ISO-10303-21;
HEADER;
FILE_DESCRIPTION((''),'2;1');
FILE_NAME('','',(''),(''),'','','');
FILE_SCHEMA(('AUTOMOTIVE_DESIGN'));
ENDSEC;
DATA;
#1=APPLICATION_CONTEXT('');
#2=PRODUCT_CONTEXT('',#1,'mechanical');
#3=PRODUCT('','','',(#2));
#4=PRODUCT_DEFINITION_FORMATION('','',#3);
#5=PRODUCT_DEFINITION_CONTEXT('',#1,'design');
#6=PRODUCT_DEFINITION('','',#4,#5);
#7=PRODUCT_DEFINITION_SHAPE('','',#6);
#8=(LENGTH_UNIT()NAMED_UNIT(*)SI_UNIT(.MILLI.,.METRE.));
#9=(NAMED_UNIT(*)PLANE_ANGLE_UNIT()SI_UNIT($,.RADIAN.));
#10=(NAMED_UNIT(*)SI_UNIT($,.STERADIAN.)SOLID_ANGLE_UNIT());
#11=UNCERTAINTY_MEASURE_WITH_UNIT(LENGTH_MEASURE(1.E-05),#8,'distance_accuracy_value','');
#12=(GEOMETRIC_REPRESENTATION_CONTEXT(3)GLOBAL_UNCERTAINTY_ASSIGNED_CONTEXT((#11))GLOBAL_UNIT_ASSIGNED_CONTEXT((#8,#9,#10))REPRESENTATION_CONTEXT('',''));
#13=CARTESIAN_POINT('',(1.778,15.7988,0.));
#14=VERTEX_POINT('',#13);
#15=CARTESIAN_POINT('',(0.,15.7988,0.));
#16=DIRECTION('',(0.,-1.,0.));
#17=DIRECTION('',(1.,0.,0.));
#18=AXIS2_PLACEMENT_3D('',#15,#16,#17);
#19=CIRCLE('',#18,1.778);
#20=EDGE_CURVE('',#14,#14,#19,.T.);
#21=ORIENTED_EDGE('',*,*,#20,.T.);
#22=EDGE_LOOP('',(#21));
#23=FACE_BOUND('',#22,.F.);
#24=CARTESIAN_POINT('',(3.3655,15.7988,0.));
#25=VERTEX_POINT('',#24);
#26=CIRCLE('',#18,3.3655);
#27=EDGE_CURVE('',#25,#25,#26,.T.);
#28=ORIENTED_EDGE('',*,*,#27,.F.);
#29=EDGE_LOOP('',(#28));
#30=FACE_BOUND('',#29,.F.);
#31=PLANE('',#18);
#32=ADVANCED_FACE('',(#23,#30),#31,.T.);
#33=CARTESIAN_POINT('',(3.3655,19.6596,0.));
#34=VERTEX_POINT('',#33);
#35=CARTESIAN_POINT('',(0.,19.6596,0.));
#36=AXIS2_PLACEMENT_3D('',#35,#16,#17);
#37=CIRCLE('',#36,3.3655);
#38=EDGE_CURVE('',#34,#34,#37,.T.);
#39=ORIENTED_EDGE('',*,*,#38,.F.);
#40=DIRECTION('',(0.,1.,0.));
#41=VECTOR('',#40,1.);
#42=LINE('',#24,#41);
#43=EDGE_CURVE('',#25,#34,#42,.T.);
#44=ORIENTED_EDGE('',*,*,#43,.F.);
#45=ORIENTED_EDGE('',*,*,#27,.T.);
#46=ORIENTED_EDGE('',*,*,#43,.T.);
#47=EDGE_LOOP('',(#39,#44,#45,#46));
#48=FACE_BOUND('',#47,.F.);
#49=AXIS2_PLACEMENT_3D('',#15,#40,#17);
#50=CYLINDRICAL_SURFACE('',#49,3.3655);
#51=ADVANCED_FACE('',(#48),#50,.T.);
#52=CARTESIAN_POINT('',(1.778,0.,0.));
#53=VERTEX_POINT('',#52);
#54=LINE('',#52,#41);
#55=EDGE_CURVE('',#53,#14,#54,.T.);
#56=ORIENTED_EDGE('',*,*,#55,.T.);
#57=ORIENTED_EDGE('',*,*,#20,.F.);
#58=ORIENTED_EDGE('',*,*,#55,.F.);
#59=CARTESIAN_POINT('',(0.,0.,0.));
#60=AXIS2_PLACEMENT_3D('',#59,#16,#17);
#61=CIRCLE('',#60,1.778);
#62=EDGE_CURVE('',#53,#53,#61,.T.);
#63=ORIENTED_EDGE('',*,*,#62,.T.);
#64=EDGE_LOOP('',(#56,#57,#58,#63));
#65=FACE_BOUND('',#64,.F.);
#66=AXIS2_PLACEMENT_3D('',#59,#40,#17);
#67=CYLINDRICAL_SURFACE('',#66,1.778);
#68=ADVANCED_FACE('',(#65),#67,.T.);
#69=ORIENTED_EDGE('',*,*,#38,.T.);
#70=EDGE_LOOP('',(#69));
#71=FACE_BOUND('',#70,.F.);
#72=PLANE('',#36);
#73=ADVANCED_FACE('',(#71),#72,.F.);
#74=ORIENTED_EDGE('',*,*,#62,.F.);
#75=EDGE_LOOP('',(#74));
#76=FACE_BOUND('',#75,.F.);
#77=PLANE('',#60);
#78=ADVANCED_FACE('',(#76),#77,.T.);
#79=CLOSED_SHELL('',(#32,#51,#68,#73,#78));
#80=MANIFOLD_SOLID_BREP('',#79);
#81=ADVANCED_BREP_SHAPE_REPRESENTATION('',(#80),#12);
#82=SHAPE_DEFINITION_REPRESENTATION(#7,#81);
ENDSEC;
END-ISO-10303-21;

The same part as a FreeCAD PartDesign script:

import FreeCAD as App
import Part
import Sketcher
from FreeCAD import Vector
Q = App.Units.Quantity


def add_polygon(sketch, points):
    """Adds a closed chain of lines whose ends are joined by coincident constraints."""
    first, n = sketch.GeometryCount, len(points)
    for a, b in zip(points, points[1:] + points[:1]):
        sketch.addGeometry(Part.LineSegment(App.Vector(*a, 0), App.Vector(*b, 0)), False)
    for i in range(n):
        sketch.addConstraint(Sketcher.Constraint("Coincident", first + i, 2, first + (i + 1) % n, 1))

doc = App.newDocument("Part")
body = doc.addObject("PartDesign::Body", "Body")

sketch1 = body.newObject("Sketcher::SketchObject", "Sketch")
sketch1.AttachmentSupport = (doc.getObject("XY_Plane"), [""])
sketch1.MapMode = "FlatFace"
add_polygon(sketch1, [(0, 19.7), (0, 0), (1.8, 0), (1.8, 15.8), (3.4, 15.8), (3.4, 19.7)])
sketch1.addConstraint([
    Sketcher.Constraint("Vertical", 0),
    Sketcher.Constraint("Horizontal", 1),
    Sketcher.Constraint("Vertical", 2),
    Sketcher.Constraint("Horizontal", 3),
    Sketcher.Constraint("Vertical", 4),
    Sketcher.Constraint("Horizontal", 5),
    Sketcher.Constraint("Coincident", 0, 2, -1, 1),
    Sketcher.Constraint("DistanceY", 2, 1, 2, 2, Q("0.622 in")),
    Sketcher.Constraint("DistanceY", 4, 1, 4, 2, Q("0.152 in")),
    Sketcher.Constraint("DistanceX", 1, 1, 1, 2, Q("0.07 in")),
    Sketcher.Constraint("DistanceX", 3, 1, 3, 2, Q("0.0625 in")),
])
revolution = body.newObject("PartDesign::Revolution", "Revolution")
revolution.Profile = sketch1
revolution.ReferenceAxis = (sketch1, ["V_Axis"])
revolution.Angle = 360

doc.recompute()
